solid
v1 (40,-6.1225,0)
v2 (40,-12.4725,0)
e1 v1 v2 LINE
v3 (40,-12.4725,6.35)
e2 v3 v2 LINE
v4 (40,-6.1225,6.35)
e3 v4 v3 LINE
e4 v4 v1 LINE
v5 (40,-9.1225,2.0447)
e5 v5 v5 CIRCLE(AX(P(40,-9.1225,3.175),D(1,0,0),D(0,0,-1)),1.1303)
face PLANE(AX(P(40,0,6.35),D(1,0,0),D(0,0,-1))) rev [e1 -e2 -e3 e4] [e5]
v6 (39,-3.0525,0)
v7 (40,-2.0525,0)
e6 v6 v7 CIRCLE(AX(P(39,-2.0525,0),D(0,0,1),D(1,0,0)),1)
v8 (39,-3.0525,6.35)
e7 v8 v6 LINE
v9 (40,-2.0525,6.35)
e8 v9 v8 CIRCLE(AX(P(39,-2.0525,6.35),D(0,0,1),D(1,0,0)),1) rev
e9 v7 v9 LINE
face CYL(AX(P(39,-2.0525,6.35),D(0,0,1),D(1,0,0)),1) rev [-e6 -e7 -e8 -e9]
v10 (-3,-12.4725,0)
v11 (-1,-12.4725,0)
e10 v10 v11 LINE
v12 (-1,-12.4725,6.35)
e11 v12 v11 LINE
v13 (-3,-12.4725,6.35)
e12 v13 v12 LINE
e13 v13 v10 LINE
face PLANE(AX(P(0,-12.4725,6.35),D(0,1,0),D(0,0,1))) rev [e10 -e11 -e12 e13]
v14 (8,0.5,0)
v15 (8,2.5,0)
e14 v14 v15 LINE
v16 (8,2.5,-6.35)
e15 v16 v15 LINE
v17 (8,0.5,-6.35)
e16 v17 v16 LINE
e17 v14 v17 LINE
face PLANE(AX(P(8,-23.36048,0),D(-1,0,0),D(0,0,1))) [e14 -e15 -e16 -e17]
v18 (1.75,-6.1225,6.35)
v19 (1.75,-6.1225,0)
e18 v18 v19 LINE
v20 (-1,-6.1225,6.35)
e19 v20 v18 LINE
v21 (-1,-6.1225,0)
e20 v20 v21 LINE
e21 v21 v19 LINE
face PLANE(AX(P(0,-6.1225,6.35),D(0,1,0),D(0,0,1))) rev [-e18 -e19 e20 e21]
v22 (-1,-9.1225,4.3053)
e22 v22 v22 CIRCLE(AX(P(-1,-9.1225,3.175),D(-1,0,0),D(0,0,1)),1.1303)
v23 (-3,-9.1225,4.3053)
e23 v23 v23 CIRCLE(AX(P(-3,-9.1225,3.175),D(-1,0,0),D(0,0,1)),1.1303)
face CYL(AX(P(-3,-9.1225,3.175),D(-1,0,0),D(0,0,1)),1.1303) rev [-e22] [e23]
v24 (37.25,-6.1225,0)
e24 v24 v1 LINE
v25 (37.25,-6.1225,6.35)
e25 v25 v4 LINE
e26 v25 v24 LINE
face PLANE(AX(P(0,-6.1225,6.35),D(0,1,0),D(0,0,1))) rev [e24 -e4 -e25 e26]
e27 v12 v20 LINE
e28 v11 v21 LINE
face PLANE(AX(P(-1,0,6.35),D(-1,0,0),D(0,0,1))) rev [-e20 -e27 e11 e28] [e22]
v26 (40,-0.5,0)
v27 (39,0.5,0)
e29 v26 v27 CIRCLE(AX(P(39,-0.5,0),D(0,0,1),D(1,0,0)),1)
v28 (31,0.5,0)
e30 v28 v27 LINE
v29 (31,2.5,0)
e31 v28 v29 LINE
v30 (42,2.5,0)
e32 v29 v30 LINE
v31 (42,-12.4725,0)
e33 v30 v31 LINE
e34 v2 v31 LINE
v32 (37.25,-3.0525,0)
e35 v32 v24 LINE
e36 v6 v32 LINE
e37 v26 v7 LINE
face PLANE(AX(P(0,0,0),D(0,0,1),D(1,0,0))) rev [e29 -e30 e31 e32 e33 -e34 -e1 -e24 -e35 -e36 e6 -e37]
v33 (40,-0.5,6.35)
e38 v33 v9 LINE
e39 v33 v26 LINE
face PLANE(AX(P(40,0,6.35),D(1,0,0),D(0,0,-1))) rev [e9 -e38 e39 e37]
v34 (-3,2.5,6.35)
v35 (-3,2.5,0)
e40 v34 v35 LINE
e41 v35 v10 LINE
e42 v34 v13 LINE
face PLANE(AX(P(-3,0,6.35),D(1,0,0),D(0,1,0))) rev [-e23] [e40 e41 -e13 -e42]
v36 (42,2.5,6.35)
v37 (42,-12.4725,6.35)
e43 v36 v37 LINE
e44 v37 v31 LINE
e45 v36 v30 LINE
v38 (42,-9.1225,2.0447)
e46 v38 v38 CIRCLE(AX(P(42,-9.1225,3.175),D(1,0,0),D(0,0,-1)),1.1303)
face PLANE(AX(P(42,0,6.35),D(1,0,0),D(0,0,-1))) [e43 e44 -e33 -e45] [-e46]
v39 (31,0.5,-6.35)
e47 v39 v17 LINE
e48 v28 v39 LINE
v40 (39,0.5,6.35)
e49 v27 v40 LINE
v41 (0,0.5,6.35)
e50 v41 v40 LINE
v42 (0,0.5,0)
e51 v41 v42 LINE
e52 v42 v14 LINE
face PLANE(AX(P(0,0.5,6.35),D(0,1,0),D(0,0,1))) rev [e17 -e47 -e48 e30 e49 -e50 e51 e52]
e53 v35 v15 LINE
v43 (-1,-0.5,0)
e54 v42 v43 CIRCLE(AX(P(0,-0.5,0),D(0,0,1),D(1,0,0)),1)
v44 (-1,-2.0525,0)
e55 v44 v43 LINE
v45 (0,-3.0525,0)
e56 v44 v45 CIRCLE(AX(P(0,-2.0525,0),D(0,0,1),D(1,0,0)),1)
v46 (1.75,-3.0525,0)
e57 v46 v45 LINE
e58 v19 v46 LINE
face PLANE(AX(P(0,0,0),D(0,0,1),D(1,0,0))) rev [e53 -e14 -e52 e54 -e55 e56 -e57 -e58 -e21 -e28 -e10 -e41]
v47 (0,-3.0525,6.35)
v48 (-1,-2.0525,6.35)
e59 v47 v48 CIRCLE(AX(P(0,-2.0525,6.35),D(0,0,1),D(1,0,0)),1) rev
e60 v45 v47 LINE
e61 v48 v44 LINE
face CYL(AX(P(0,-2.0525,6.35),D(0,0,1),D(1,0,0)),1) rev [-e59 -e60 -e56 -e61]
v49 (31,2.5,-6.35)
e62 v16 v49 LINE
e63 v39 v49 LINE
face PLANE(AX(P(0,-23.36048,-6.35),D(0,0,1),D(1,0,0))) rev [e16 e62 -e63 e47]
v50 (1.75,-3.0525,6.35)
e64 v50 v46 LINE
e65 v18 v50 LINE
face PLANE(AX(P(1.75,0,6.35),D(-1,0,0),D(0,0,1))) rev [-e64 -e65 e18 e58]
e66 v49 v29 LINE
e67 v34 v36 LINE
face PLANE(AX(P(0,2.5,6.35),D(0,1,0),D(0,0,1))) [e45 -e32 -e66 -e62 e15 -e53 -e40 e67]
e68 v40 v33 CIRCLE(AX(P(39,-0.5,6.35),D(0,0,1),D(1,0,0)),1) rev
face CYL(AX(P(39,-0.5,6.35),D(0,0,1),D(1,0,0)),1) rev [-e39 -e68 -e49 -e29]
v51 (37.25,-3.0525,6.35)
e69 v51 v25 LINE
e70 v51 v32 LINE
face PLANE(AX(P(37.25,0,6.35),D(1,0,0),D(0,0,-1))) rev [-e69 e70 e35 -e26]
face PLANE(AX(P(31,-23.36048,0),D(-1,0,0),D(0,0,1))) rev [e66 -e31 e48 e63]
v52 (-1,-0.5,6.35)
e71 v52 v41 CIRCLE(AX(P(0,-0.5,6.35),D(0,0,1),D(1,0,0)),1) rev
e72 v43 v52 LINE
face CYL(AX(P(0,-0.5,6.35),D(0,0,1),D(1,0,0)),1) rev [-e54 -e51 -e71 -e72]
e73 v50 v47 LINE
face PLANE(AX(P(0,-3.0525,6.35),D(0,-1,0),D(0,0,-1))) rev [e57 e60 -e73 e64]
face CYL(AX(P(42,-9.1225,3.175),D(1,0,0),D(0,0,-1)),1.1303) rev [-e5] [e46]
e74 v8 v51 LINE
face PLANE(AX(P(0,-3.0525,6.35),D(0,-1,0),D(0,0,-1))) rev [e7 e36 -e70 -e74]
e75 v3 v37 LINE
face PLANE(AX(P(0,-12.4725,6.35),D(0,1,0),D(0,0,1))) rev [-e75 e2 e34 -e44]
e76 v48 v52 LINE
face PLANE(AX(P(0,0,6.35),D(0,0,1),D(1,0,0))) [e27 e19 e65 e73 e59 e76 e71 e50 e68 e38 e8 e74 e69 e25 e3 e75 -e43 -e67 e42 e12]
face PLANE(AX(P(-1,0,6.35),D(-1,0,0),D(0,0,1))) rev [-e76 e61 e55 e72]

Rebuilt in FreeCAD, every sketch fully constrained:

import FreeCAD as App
import Part
import Sketcher
Q = App.Units.Quantity


def edges_at(feature, points):
    """Names of the edges that pass closest to the given points."""
    edges = feature.Shape.Edges
    near = lambda p: min(range(len(edges)), key=lambda i: edges[i].distToShape(Part.Vertex(*p))[0])
    return sorted({f"Edge{near(p) + 1}" for p in points})

doc = App.newDocument("Part")
body = doc.addObject("PartDesign::Body", "Body")

sketch1 = body.newObject("Sketcher::SketchObject", "Sketch")
sketch1.AttachmentSupport = (doc.getObject("XY_Plane"), [""])
sketch1.MapMode = "FlatFace"
sketch1.addGeometry([
    Part.LineSegment(App.Vector(-3, -12.4725, 0), App.Vector(-1, -12.4725, 0)),
    Part.LineSegment(App.Vector(-1, -12.4725, 0), App.Vector(-1, -6.1225, 0)),
    Part.LineSegment(App.Vector(-1, -6.1225, 0), App.Vector(1.75, -6.1225, 0)),
    Part.LineSegment(App.Vector(1.75, -6.1225, 0), App.Vector(1.75, -3.0525, 0)),
    Part.LineSegment(App.Vector(1.75, -3.0525, 0), App.Vector(-1, -3.0525, 0)),
    Part.LineSegment(App.Vector(-1, -3.0525, 0), App.Vector(-1, 0.5, 0)),
    Part.LineSegment(App.Vector(-1, 0.5, 0), App.Vector(40, 0.5, 0)),
    Part.LineSegment(App.Vector(40, 0.5, 0), App.Vector(40, -3.0525, 0)),
    Part.LineSegment(App.Vector(40, -3.0525, 0), App.Vector(37.25, -3.0525, 0)),
    Part.LineSegment(App.Vector(37.25, -3.0525, 0), App.Vector(37.25, -6.1225, 0)),
    Part.LineSegment(App.Vector(37.25, -6.1225, 0), App.Vector(40, -6.1225, 0)),
    Part.LineSegment(App.Vector(40, -6.1225, 0), App.Vector(40, -12.4725, 0)),
    Part.LineSegment(App.Vector(40, -12.4725, 0), App.Vector(42, -12.4725, 0)),
    Part.LineSegment(App.Vector(42, -12.4725, 0), App.Vector(42, 2.5, 0)),
    Part.LineSegment(App.Vector(42, 2.5, 0), App.Vector(-3, 2.5, 0)),
    Part.LineSegment(App.Vector(-3, 2.5, 0), App.Vector(-3, -12.4725, 0)),
], False)
sketch1.addConstraint([
    Sketcher.Constraint("Coincident", 0, 2, 1, 1),
    Sketcher.Constraint("Coincident", 1, 2, 2, 1),
    Sketcher.Constraint("Coincident", 2, 2, 3, 1),
    Sketcher.Constraint("Coincident", 3, 2, 4, 1),
    Sketcher.Constraint("Coincident", 4, 2, 5, 1),
    Sketcher.Constraint("Coincident", 5, 2, 6, 1),
    Sketcher.Constraint("Coincident", 6, 2, 7, 1),
    Sketcher.Constraint("Coincident", 7, 2, 8, 1),
    Sketcher.Constraint("Coincident", 8, 2, 9, 1),
    Sketcher.Constraint("Coincident", 9, 2, 10, 1),
    Sketcher.Constraint("Coincident", 10, 2, 11, 1),
    Sketcher.Constraint("Coincident", 11, 2, 12, 1),
    Sketcher.Constraint("Coincident", 12, 2, 13, 1),
    Sketcher.Constraint("Coincident", 13, 2, 14, 1),
    Sketcher.Constraint("Coincident", 14, 2, 15, 1),
    Sketcher.Constraint("Coincident", 15, 2, 0, 1),
    Sketcher.Constraint("Horizontal", 0),
    Sketcher.Constraint("Vertical", 1),
    Sketcher.Constraint("Horizontal", 2),
    Sketcher.Constraint("Vertical", 3),
    Sketcher.Constraint("Horizontal", 4),
    Sketcher.Constraint("Vertical", 5),
    Sketcher.Constraint("Horizontal", 6),
    Sketcher.Constraint("Vertical", 7),
    Sketcher.Constraint("Horizontal", 8),
    Sketcher.Constraint("Vertical", 9),
    Sketcher.Constraint("Horizontal", 10),
    Sketcher.Constraint("Vertical", 11),
    Sketcher.Constraint("Horizontal", 12),
    Sketcher.Constraint("Vertical", 13),
    Sketcher.Constraint("Horizontal", 14),
    Sketcher.Constraint("Vertical", 15),
    Sketcher.Constraint("Horizontal", 4, 2, 7, 2),
    Sketcher.Constraint("Horizontal", 2, 2, 9, 2),
    Sketcher.Constraint("Horizontal", 0, 2, 11, 2),
    Sketcher.Constraint("Vertical", 1, 2, 4, 2),
    Sketcher.Constraint("Vertical", 7, 2, 10, 2),
    Sketcher.Constraint("Equal", 4, 8),
    Sketcher.Constraint("Equal", 0, 12),
    Sketcher.Constraint("DistanceX", 0, 1, 0, 2, Q("2 mm")),
    Sketcher.Constraint("DistanceX", 6, 1, 6, 2, Q("41 mm")),
    Sketcher.Constraint("DistanceX", 0, 2, -1, 1, Q("1 mm")),
    Sketcher.Constraint("DistanceY", 6, 2, 13, 2, Q("2 mm")),
    Sketcher.Constraint("DistanceX", 2, 1, 2, 2, Q("2.75 mm")),
    Sketcher.Constraint("DistanceY", 1, 1, 1, 2, Q("6.35 mm")),
    Sketcher.Constraint("DistanceY", 3, 1, 3, 2, Q("3.07 mm")),
    Sketcher.Constraint("DistanceY", -1, 1, 5, 2, Q("0.5 mm")),
    Sketcher.Constraint("DistanceY", 5, 1, 5, 2, Q("3.5525 mm")),
])
pad1 = body.newObject("PartDesign::Pad", "Pad")
pad1.Profile = sketch1
pad1.Length = 6.35

sketch2 = body.newObject("Sketcher::SketchObject", "Sketch001")
sketch2.AttachmentSupport = (doc.getObject("XZ_Plane"), [""])
sketch2.MapMode = "FlatFace"
sketch2.AttachmentOffset = App.Placement(App.Vector(0, 0, -2.5), App.Rotation())
sketch2.addGeometry([
    Part.LineSegment(App.Vector(8, -6.35, 0), App.Vector(8, 0, 0)),
    Part.LineSegment(App.Vector(8, 0, 0), App.Vector(31, 0, 0)),
    Part.LineSegment(App.Vector(31, 0, 0), App.Vector(31, -6.35, 0)),
    Part.LineSegment(App.Vector(31, -6.35, 0), App.Vector(8, -6.35, 0)),
], False)
sketch2.addConstraint([
    Sketcher.Constraint("Coincident", 0, 2, 1, 1),
    Sketcher.Constraint("Coincident", 1, 2, 2, 1),
    Sketcher.Constraint("Coincident", 2, 2, 3, 1),
    Sketcher.Constraint("Coincident", 3, 2, 0, 1),
    Sketcher.Constraint("Vertical", 0),
    Sketcher.Constraint("Horizontal", 1),
    Sketcher.Constraint("Vertical", 2),
    Sketcher.Constraint("Horizontal", 3),
    Sketcher.Constraint("PointOnObject", 0, 2, -1),
    Sketcher.Constraint("DistanceX", 1, 1, 1, 2, Q("23 mm")),
    Sketcher.Constraint("DistanceX", -1, 1, 0, 2, Q("8 mm")),
    Sketcher.Constraint("DistanceY", 0, 1, 0, 2, Q("6.35 mm")),
])
pad2 = body.newObject("PartDesign::Pad", "Pad001")
pad2.Profile = sketch2
pad2.Length = 2

sketch3 = body.newObject("Sketcher::SketchObject", "Sketch002")
sketch3.AttachmentSupport = (doc.getObject("YZ_Plane"), [""])
sketch3.MapMode = "FlatFace"
sketch3.AttachmentOffset = App.Placement(App.Vector(0, 0, -3), App.Rotation())
sketch3.addGeometry(Part.Circle(App.Vector(-9.1225, 3.175, 0), App.Vector(0, 0, 1), 1.1303), False)
sketch3.addConstraint([
    Sketcher.Constraint("Diameter", 0, Q("2.2606 mm")),
    Sketcher.Constraint("DistanceY", -1, 1, 0, 3, Q("3.175 mm")),
    Sketcher.Constraint("DistanceX", 0, 3, -1, 1, Q("9.1225 mm")),
])
doc.recompute()
hole = body.newObject("PartDesign::Hole", "Hole")
hole.Profile = sketch3
hole.ThreadType = "None"
hole.Diameter = 2.2606
hole.DepthType = "Dimension"
hole.Depth = 3.91
hole.DrillPoint = "Angled"
hole.DrillPointAngle = 118
hole.Reversed = True

sketch4 = body.newObject("Sketcher::SketchObject", "Sketch003")
sketch4.AttachmentSupport = (doc.getObject("YZ_Plane"), [""])
sketch4.MapMode = "FlatFace"
sketch4.AttachmentOffset = App.Placement(App.Vector(0, 0, 42), App.Rotation())
sketch4.addGeometry(Part.Circle(App.Vector(-9.1225, 3.175, 0), App.Vector(0, 0, 1), 1.1303), False)
sketch4.addConstraint([
    Sketcher.Constraint("Diameter", 0, Q("2.2606 mm")),
    Sketcher.Constraint("DistanceY", -1, 1, 0, 3, Q("3.175 mm")),
    Sketcher.Constraint("DistanceX", 0, 3, -1, 1, Q("9.1225 mm")),
])
doc.recompute()
hole2 = body.newObject("PartDesign::Hole", "Hole001")
hole2.Profile = sketch4
hole2.ThreadType = "None"
hole2.Diameter = 2.2606
hole2.DepthType = "Dimension"
hole2.Depth = 3.91
hole2.DrillPoint = "Angled"
hole2.DrillPointAngle = 118
doc.recompute()

fillet = body.newObject("PartDesign::Fillet", "Fillet")
fillet.Base = (hole2, edges_at(hole2, [
    (40, 0.5, 3.175),
    (-1, 0.5, 3.175),
    (-1, -3.053, 3.175),
    (40, -3.053, 3.175),
]))
fillet.Radius = 1

doc.recompute()
